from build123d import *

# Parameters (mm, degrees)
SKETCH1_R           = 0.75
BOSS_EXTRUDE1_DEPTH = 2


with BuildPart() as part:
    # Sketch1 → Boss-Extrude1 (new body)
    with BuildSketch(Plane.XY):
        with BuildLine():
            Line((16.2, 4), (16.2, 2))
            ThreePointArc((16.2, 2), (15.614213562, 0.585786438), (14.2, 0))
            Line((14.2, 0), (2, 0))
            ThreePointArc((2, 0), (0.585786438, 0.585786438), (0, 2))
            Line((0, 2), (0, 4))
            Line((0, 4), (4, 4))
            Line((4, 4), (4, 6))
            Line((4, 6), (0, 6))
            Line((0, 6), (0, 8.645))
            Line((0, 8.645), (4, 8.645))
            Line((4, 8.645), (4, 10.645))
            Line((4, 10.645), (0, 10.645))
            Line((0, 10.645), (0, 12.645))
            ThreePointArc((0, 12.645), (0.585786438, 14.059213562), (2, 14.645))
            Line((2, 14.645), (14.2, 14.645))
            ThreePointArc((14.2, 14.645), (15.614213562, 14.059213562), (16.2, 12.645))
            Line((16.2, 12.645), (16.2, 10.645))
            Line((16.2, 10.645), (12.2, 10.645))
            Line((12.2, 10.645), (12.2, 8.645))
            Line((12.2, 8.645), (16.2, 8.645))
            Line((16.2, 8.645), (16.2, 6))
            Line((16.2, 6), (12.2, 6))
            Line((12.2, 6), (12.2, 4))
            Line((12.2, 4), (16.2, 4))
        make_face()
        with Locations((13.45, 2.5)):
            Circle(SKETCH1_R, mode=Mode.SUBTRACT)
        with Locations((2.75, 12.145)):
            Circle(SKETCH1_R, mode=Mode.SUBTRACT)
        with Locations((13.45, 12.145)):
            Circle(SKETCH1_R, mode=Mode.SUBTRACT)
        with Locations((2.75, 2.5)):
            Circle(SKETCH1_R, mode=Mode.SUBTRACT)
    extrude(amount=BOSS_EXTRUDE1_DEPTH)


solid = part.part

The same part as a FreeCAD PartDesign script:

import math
import FreeCAD as App
import Part
import Sketcher

V = App.Vector

doc = App.newDocument("Part")
body = doc.addObject("PartDesign::Body", "Body")

# Sketch on XY plane
sketch1 = body.newObject("Sketcher::SketchObject", "Sketch")
sketch1.AttachmentSupport = (doc.getObject("XY_Plane"), [""])
sketch1.MapMode = "FlatFace"
sketch1.addGeometry([
    Part.LineSegment(V(16.2, 2, 0), V(16.2, 4, 0)),  # 0
    Part.LineSegment(V(16.2, 4, 0), V(12.2, 4, 0)),  # 1
    Part.LineSegment(V(12.2, 4, 0), V(12.2, 6, 0)),  # 2
    Part.LineSegment(V(12.2, 6, 0), V(16.2, 6, 0)),  # 3
    Part.LineSegment(V(16.2, 6, 0), V(16.2, 8.645, 0)),  # 4
    Part.LineSegment(V(16.2, 8.645, 0), V(12.2, 8.645, 0)),  # 5
    Part.LineSegment(V(12.2, 8.645, 0), V(12.2, 10.645, 0)),  # 6
    Part.LineSegment(V(12.2, 10.645, 0), V(16.2, 10.645, 0)),  # 7
    Part.LineSegment(V(16.2, 10.645, 0), V(16.2, 12.645, 0)),  # 8
    Part.ArcOfCircle(Part.Circle(V(14.2, 12.645, 0), V(0, 0, 1), 2), math.radians(0), math.radians(90)),  # 9
    Part.LineSegment(V(14.2, 14.645, 0), V(2, 14.645, 0)),  # 10
    Part.ArcOfCircle(Part.Circle(V(2, 12.645, 0), V(0, 0, 1), 2), math.radians(90), math.radians(180)),  # 11
    Part.LineSegment(V(0, 12.645, 0), V(0, 10.645, 0)),  # 12
    Part.LineSegment(V(0, 10.645, 0), V(4, 10.645, 0)),  # 13
    Part.LineSegment(V(4, 10.645, 0), V(4, 8.645, 0)),  # 14
    Part.LineSegment(V(4, 8.645, 0), V(0, 8.645, 0)),  # 15
    Part.LineSegment(V(0, 8.645, 0), V(0, 6, 0)),  # 16
    Part.LineSegment(V(0, 6, 0), V(4, 6, 0)),  # 17
    Part.LineSegment(V(4, 6, 0), V(4, 4, 0)),  # 18
    Part.LineSegment(V(4, 4, 0), V(0, 4, 0)),  # 19
    Part.LineSegment(V(0, 4, 0), V(0, 2, 0)),  # 20
    Part.ArcOfCircle(Part.Circle(V(2, 2, 0), V(0, 0, 1), 2), math.radians(-180), math.radians(-90)),  # 21
    Part.LineSegment(V(2, 0, 0), V(14.2, 0, 0)),  # 22
    Part.ArcOfCircle(Part.Circle(V(14.2, 2, 0), V(0, 0, 1), 2), math.radians(-90), math.radians(0)),  # 23
    Part.Circle(V(13.45, 2.5, 0), V(0, 0, 1), 0.75),  # 24
    Part.Circle(V(2.75, 2.5, 0), V(0, 0, 1), 0.75),  # 25
    Part.Circle(V(13.45, 12.145, 0), V(0, 0, 1), 0.75),  # 26
    Part.Circle(V(2.75, 12.145, 0), V(0, 0, 1), 0.75),  # 27
], False)
sketch1.addConstraint([
    Sketcher.Constraint("Coincident", 0, 2, 1, 1),
    Sketcher.Constraint("Coincident", 1, 2, 2, 1),
    Sketcher.Constraint("Coincident", 2, 2, 3, 1),
    Sketcher.Constraint("Coincident", 3, 2, 4, 1),
    Sketcher.Constraint("Coincident", 4, 2, 5, 1),
    Sketcher.Constraint("Coincident", 5, 2, 6, 1),
    Sketcher.Constraint("Coincident", 6, 2, 7, 1),
    Sketcher.Constraint("Coincident", 7, 2, 8, 1),
    Sketcher.Constraint("Tangent", 8, 2, 9, 1),
    Sketcher.Constraint("Tangent", 9, 2, 10, 1),
    Sketcher.Constraint("Tangent", 10, 2, 11, 1),
    Sketcher.Constraint("Tangent", 11, 2, 12, 1),
    Sketcher.Constraint("Coincident", 12, 2, 13, 1),
    Sketcher.Constraint("Coincident", 13, 2, 14, 1),
    Sketcher.Constraint("Coincident", 14, 2, 15, 1),
    Sketcher.Constraint("Coincident", 15, 2, 16, 1),
    Sketcher.Constraint("Coincident", 16, 2, 17, 1),
    Sketcher.Constraint("Coincident", 17, 2, 18, 1),
    Sketcher.Constraint("Coincident", 18, 2, 19, 1),
    Sketcher.Constraint("Coincident", 19, 2, 20, 1),
    Sketcher.Constraint("Tangent", 20, 2, 21, 1),
    Sketcher.Constraint("Tangent", 21, 2, 22, 1),
    Sketcher.Constraint("Tangent", 22, 2, 23, 1),
    Sketcher.Constraint("Tangent", 23, 2, 0, 1),
    Sketcher.Constraint("Vertical", 0),
    Sketcher.Constraint("Horizontal", 1),
    Sketcher.Constraint("Vertical", 2),
    Sketcher.Constraint("Horizontal", 3),
    Sketcher.Constraint("Vertical", 4),
    Sketcher.Constraint("Horizontal", 5),
    Sketcher.Constraint("Vertical", 6),
    Sketcher.Constraint("Horizontal", 7),
    Sketcher.Constraint("Vertical", 8),
    Sketcher.Constraint("Horizontal", 10),
    Sketcher.Constraint("Vertical", 12),
    Sketcher.Constraint("Horizontal", 13),
    Sketcher.Constraint("Vertical", 14),
    Sketcher.Constraint("Horizontal", 15),
    Sketcher.Constraint("Vertical", 16),
    Sketcher.Constraint("Horizontal", 17),
    Sketcher.Constraint("Vertical", 18),
    Sketcher.Constraint("Horizontal", 19),
    Sketcher.Constraint("Vertical", 20),
    Sketcher.Constraint("Horizontal", 22),
    Sketcher.Constraint("Equal", 9, 11),
    Sketcher.Constraint("Equal", 11, 21),
    Sketcher.Constraint("Equal", 21, 23),
    Sketcher.Constraint("Equal", 24, 25),
    Sketcher.Constraint("Equal", 25, 26),
    Sketcher.Constraint("Equal", 26, 27),
    Sketcher.Constraint("PointOnObject", 11, 2, -2),
    Sketcher.Constraint("PointOnObject", 15, 2, -2),
    Sketcher.Constraint("PointOnObject", 19, 2, -2),
    Sketcher.Constraint("PointOnObject", 21, 2, -1),
    Sketcher.Constraint("Horizontal", 24, 3, 25, 3),
    Sketcher.Constraint("Horizontal", 26, 3, 27, 3),
    Sketcher.Constraint("Horizontal", 7, 2, 12, 2),
    Sketcher.Constraint("Horizontal", 5, 2, 14, 2),
    Sketcher.Constraint("Horizontal", 3, 2, 16, 2),
    Sketcher.Constraint("Horizontal", 1, 2, 18, 2),
    Sketcher.Constraint("Vertical", 9, 3, 23, 3),
    Sketcher.Constraint("Vertical", 24, 3, 26, 3),
    Sketcher.Constraint("Vertical", 25, 3, 27, 3),
    Sketcher.Constraint("Vertical", 0, 2, 3, 2),
    Sketcher.Constraint("Vertical", 2, 2, 5, 2),
    Sketcher.Constraint("Vertical", 14, 2, 17, 2),
    Sketcher.Constraint("Equal", 7, 13),
    Sketcher.Constraint("Equal", 0, 2),
    Sketcher.Constraint("Equal", 2, 6),
    Sketcher.Constraint("Equal", 6, 8),
    Sketcher.Constraint("Radius", 9, 2.0),
    Sketcher.Constraint("Diameter", 24, 1.5),
    Sketcher.Constraint("DistanceX", 1, 2, 1, 1, 4.0),
    Sketcher.Constraint("DistanceY", 0, 1, 0, 2, 2.0),
    Sketcher.Constraint("DistanceX", 10, 2, 10, 1, 12.2),
    Sketcher.Constraint("DistanceY", -1, 1, 24, 3, 2.5),
    Sketcher.Constraint("DistanceX", 25, 3, 24, 3, 10.7),
    Sketcher.Constraint("DistanceY", 26, 3, 9, 3, 0.5),
    Sketcher.Constraint("DistanceY", 4, 1, 4, 2, 2.645),
    Sketcher.Constraint("DistanceX", -1, 1, 24, 3, 13.45),
])
pad1 = body.newObject("PartDesign::Pad", "Pad")
pad1.Profile = sketch1
pad1.Length = 2

doc.recompute()
